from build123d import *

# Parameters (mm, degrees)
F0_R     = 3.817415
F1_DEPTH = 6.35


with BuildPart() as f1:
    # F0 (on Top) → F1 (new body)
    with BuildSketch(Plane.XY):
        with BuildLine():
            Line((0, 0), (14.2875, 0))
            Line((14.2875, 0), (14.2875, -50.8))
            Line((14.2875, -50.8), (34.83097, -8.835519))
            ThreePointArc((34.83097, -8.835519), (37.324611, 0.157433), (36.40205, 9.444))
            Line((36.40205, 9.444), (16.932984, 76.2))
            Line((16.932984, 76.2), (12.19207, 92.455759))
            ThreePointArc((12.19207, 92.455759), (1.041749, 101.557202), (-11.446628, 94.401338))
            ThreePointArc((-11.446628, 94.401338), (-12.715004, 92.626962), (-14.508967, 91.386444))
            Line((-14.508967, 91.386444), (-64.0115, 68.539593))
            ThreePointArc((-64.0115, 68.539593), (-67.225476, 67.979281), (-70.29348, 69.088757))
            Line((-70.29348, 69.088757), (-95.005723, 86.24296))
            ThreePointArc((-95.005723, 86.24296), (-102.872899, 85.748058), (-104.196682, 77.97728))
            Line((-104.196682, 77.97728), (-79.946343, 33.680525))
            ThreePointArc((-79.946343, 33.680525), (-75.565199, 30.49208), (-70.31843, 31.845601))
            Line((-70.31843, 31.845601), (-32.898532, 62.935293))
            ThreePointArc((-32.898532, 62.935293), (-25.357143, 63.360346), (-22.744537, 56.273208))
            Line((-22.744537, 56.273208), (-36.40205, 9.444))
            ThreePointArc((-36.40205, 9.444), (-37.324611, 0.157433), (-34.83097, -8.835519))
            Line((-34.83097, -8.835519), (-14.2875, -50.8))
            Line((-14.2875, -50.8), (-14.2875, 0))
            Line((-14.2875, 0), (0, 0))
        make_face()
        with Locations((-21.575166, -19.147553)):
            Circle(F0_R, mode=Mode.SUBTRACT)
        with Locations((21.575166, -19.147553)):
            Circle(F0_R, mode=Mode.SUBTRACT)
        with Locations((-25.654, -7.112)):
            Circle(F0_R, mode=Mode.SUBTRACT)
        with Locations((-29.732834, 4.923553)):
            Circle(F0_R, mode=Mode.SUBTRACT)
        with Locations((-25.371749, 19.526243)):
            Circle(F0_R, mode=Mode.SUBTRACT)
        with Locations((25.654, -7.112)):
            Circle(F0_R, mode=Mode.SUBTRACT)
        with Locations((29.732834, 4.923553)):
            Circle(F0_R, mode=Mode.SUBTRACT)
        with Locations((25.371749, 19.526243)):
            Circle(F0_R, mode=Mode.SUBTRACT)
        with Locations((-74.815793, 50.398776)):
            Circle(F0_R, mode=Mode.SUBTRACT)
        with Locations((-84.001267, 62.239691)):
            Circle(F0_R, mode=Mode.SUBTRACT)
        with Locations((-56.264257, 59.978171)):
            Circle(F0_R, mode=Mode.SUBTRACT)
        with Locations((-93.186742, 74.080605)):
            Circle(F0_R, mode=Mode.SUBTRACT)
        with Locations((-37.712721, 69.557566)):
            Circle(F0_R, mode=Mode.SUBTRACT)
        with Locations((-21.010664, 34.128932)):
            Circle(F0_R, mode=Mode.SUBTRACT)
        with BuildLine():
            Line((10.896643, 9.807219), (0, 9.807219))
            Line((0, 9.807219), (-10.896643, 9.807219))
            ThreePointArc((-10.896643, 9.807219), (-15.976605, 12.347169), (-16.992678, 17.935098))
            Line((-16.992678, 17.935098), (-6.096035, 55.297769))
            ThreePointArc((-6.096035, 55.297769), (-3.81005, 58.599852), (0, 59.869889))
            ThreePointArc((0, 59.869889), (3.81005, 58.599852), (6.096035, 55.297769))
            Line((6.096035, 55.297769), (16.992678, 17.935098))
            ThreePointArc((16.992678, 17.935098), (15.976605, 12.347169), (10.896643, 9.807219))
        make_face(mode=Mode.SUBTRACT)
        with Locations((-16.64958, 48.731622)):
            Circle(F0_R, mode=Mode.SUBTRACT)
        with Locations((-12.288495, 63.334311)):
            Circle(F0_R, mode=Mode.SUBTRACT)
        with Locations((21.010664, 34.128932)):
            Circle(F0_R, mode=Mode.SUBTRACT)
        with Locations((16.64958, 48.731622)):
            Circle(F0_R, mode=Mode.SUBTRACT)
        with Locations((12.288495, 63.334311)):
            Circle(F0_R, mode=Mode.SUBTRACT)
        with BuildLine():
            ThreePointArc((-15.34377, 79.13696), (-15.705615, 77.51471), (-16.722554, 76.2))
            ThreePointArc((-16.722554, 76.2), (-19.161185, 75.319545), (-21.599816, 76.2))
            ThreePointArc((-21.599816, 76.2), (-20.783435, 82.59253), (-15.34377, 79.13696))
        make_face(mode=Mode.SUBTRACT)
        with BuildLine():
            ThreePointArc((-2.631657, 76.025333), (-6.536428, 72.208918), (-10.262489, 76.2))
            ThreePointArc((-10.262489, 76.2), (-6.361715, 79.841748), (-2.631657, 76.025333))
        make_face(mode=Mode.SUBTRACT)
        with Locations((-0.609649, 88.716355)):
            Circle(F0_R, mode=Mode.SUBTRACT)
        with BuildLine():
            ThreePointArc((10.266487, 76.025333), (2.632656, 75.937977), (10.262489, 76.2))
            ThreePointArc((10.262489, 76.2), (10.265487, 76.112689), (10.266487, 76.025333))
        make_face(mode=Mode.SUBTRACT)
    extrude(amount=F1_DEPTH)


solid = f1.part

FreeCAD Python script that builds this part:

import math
import FreeCAD as App
import Part
import Sketcher
from FreeCAD import Vector
Q = App.Units.Quantity

doc = App.newDocument("Part")
body = doc.addObject("PartDesign::Body", "Body")

sketch1 = body.newObject("Sketcher::SketchObject", "Sketch")
sketch1.AttachmentSupport = (doc.getObject("XY_Plane"), [""])
sketch1.MapMode = "FlatFace"
sketch1.addGeometry([
    Part.LineSegment(Vector(14.2875, 0, 0), Vector(14.2875, -50.8, 0)),
    Part.LineSegment(Vector(14.2875, -50.8, 0), Vector(34.83097, -8.835519, 0)),
    Part.ArcOfCircle(Part.Circle(Vector(12.017908, 2.332483, 0), Vector(0, 0, 1), 25.400002), math.radians(-26.08379), math.radians(16.259069)),
    Part.LineSegment(Vector(36.40205, 9.444, 0), Vector(16.932984, 76.2, 0)),
    Part.LineSegment(Vector(16.932984, 76.2, 0), Vector(12.19207, 92.455759, 0)),
    Part.ArcOfCircle(Part.Circle(Vector(0, 88.9, 0), Vector(0, 0, 1), 12.7), math.radians(16.259072), math.radians(154.3307)),
    Part.ArcOfCircle(Part.Circle(Vector(-17.169941, 97.152006, 0), Vector(0, 0, 1), 6.349999), math.radians(-65.225305), math.radians(-25.669294)),
    Part.LineSegment(Vector(-14.508967, 91.386444, 0), Vector(-64.0115, 68.539593, 0)),
    Part.ArcOfCircle(Part.Circle(Vector(-66.672475, 74.305153, 0), Vector(0, 0, 1), 6.349998), math.radians(-124.766774), math.radians(-65.225296)),
    Part.LineSegment(Vector(-70.29348, 69.088757, 0), Vector(-95.005723, 86.24296, 0)),
    Part.ArcOfCircle(Part.Circle(Vector(-98.626728, 81.026561, 0), Vector(0, 0, 1), 6.35), math.radians(55.23324), math.radians(208.69858)),
    Part.LineSegment(Vector(-104.196682, 77.97728, 0), Vector(-79.946343, 33.680525, 0)),
    Part.ArcOfCircle(Part.Circle(Vector(-74.37639, 36.729806, 0), Vector(0, 0, 1), 6.35), math.radians(-151.301417), math.radians(-50.279075)),
    Part.LineSegment(Vector(-70.31843, 31.845601, 0), Vector(-32.898532, 62.935293, 0)),
    Part.ArcOfCircle(Part.Circle(Vector(-28.840572, 58.051088, 0), Vector(0, 0, 1), 6.35), math.radians(-16.259076), math.radians(129.72093)),
    Part.LineSegment(Vector(-22.744537, 56.273208, 0), Vector(-36.40205, 9.444, 0)),
    Part.ArcOfCircle(Part.Circle(Vector(-12.017908, 2.332483, 0), Vector(0, 0, 1), 25.400002), math.radians(163.740931), math.radians(206.08379)),
    Part.LineSegment(Vector(-34.83097, -8.835519, 0), Vector(-14.2875, -50.8, 0)),
    Part.LineSegment(Vector(-14.2875, -50.8, 0), Vector(-14.2875, 0, 0)),
    Part.LineSegment(Vector(-14.2875, 0, 0), Vector(14.2875, 0, 0)),
    Part.Circle(Vector(-21.575166, -19.147553, 0), Vector(0, 0, 1), 3.817415),
    Part.Circle(Vector(-25.654, -7.112, 0), Vector(0, 0, 1), 3.817415),
    Part.Circle(Vector(-29.732834, 4.923553, 0), Vector(0, 0, 1), 3.817415),
    Part.Circle(Vector(21.575166, -19.147553, 0), Vector(0, 0, 1), 3.817415),
    Part.Circle(Vector(25.654, -7.112, 0), Vector(0, 0, 1), 3.817415),
    Part.Circle(Vector(29.732834, 4.923553, 0), Vector(0, 0, 1), 3.817415),
    Part.Circle(Vector(-25.371749, 19.526243, 0), Vector(0, 0, 1), 3.817415),
    Part.Circle(Vector(-21.010664, 34.128932, 0), Vector(0, 0, 1), 3.817415),
    Part.Circle(Vector(25.371749, 19.526243, 0), Vector(0, 0, 1), 3.817415),
    Part.Circle(Vector(21.010664, 34.128932, 0), Vector(0, 0, 1), 3.817415),
    Part.Circle(Vector(-84.001267, 62.239691, 0), Vector(0, 0, 1), 3.817415),
    Part.Circle(Vector(-74.815793, 50.398776, 0), Vector(0, 0, 1), 3.817415),
    Part.Circle(Vector(-56.264257, 59.978171, 0), Vector(0, 0, 1), 3.817415),
    Part.Circle(Vector(-93.186742, 74.080605, 0), Vector(0, 0, 1), 3.817415),
    Part.Circle(Vector(-37.712721, 69.557566, 0), Vector(0, 0, 1), 3.817415),
    Part.Circle(Vector(-16.64958, 48.731622, 0), Vector(0, 0, 1), 3.817415),
    Part.ArcOfCircle(Part.Circle(Vector(10.896642, 16.157219, 0), Vector(0, 0, 1), 6.35), math.radians(-89.999994), math.radians(16.259064)),
    Part.LineSegment(Vector(10.896643, 9.807219, 0), Vector(-10.896643, 9.807219, 0)),
    Part.ArcOfCircle(Part.Circle(Vector(-10.896642, 16.157219, 0), Vector(0, 0, 1), 6.35), math.radians(163.740936), math.radians(269.999994)),
    Part.LineSegment(Vector(-16.992678, 17.935098, 0), Vector(-6.096035, 55.297769, 0)),
    Part.ArcOfCircle(Part.Circle(Vector(-0.000001, 53.519891, 0), Vector(0, 0, 1), 6.349998), math.radians(89.999989), math.radians(163.740934)),
    Part.ArcOfCircle(Part.Circle(Vector(0.000001, 53.519891, 0), Vector(0, 0, 1), 6.349998), math.radians(16.259066), math.radians(90.000011)),
    Part.LineSegment(Vector(6.096035, 55.297769, 0), Vector(16.992678, 17.935098, 0)),
    Part.Circle(Vector(-12.288495, 63.334311, 0), Vector(0, 0, 1), 3.817415),
    Part.Circle(Vector(16.64958, 48.731622, 0), Vector(0, 0, 1), 3.817415),
    Part.Circle(Vector(12.288495, 63.334311, 0), Vector(0, 0, 1), 3.817415),
    Part.ArcOfCircle(Part.Circle(Vector(-6.449072, 76.025333, 0), Vector(0, 0, 1), 3.817415), math.radians(0.000006), math.radians(177.377493)),
    Part.ArcOfCircle(Part.Circle(Vector(-6.449072, 76.025333, 0), Vector(0, 0, 1), 3.817415), math.radians(177.377504), math.radians(359.999994)),
    Part.ArcOfCircle(Part.Circle(Vector(-19.161185, 79.13696, 0), Vector(0, 0, 1), 3.817415), math.radians(-0.000005), math.radians(230.296309)),
    Part.ArcOfCircle(Part.Circle(Vector(-19.161181, 79.136959, 0), Vector(0, 0, 1), 3.817411), math.radians(-50.296336), math.radians(0.000021)),
    Part.ArcOfCircle(Part.Circle(Vector(-19.161185, 79.136959, 0), Vector(0, 0, 1), 3.817414), math.radians(-129.703705), math.radians(-50.296295)),
    Part.Circle(Vector(-0.609649, 88.716355, 0), Vector(0, 0, 1), 3.817415),
    Part.ArcOfCircle(Part.Circle(Vector(6.447568, 76.0253, 0), Vector(0, 0, 1), 3.818919), math.radians(0.000495), math.radians(2.621964)),
    Part.ArcOfCircle(Part.Circle(Vector(6.449072, 76.025334, 0), Vector(0, 0, 1), 3.817415), math.radians(2.62248), math.radians(359.999979)),
], False)
sketch1.addConstraint([
    Sketcher.Constraint("Coincident", 0, 2, 1, 1),
    Sketcher.Constraint("Tangent", 1, 2, 2, 1),
    Sketcher.Constraint("Tangent", 2, 2, 3, 1),
    Sketcher.Constraint("Coincident", 3, 2, 4, 1),
    Sketcher.Constraint("Tangent", 4, 2, 5, 1),
    Sketcher.Constraint("Tangent", 5, 2, 6, 2),
    Sketcher.Constraint("Tangent", 6, 1, 7, 1),
    Sketcher.Constraint("Tangent", 7, 2, 8, 2),
    Sketcher.Constraint("Tangent", 8, 1, 9, 1),
    Sketcher.Constraint("Tangent", 9, 2, 10, 1),
    Sketcher.Constraint("Tangent", 10, 2, 11, 1),
    Sketcher.Constraint("Tangent", 11, 2, 12, 1),
    Sketcher.Constraint("Tangent", 12, 2, 13, 1),
    Sketcher.Constraint("Tangent", 13, 2, 14, 2),
    Sketcher.Constraint("Tangent", 14, 1, 15, 1),
    Sketcher.Constraint("Tangent", 15, 2, 16, 1),
    Sketcher.Constraint("Tangent", 16, 2, 17, 1),
    Sketcher.Constraint("Coincident", 17, 2, 18, 1),
    Sketcher.Constraint("Coincident", 18, 2, 19, 1),
    Sketcher.Constraint("Coincident", 19, 2, 0, 1),
    Sketcher.Constraint("Tangent", 36, 1, 37, 1),
    Sketcher.Constraint("Tangent", 37, 2, 38, 2),
    Sketcher.Constraint("Tangent", 38, 1, 39, 1),
    Sketcher.Constraint("Tangent", 39, 2, 40, 2),
    Sketcher.Constraint("Tangent", 40, 1, 41, 2),
    Sketcher.Constraint("Tangent", 41, 1, 42, 1),
    Sketcher.Constraint("Tangent", 42, 2, 36, 2),
    Sketcher.Constraint("Tangent", 46, 1, 47, 2),
    Sketcher.Constraint("Coincident", 47, 1, 46, 2),
    Sketcher.Constraint("Tangent", 48, 1, 49, 2),
    Sketcher.Constraint("Tangent", 49, 1, 50, 2),
    Sketcher.Constraint("Tangent", 50, 1, 48, 2),
    Sketcher.Constraint("Coincident", 52, 1, 53, 2),
    Sketcher.Constraint("Coincident", 53, 1, 52, 2),
    Sketcher.Constraint("Vertical", 0),
    Sketcher.Constraint("Vertical", 18),
    Sketcher.Constraint("Horizontal", 19),
    Sketcher.Constraint("Horizontal", 37),
    Sketcher.Constraint("Equal", 6, 8),
    Sketcher.Constraint("Equal", 6, 10),
    Sketcher.Constraint("Equal", 10, 12),
    Sketcher.Constraint("Equal", 12, 14),
    Sketcher.Constraint("Equal", 2, 16),
    Sketcher.Constraint("Equal", 20, 21),
    Sketcher.Constraint("Equal", 21, 22),
    Sketcher.Constraint("Equal", 22, 23),
    Sketcher.Constraint("Equal", 23, 24),
    Sketcher.Constraint("Equal", 24, 25),
    Sketcher.Constraint("Equal", 25, 26),
    Sketcher.Constraint("Equal", 26, 27),
    Sketcher.Constraint("Equal", 27, 28),
    Sketcher.Constraint("Equal", 28, 29),
    Sketcher.Constraint("Equal", 29, 30),
    Sketcher.Constraint("Equal", 30, 31),
    Sketcher.Constraint("Equal", 31, 32),
    Sketcher.Constraint("Equal", 32, 33),
    Sketcher.Constraint("Equal", 33, 34),
    Sketcher.Constraint("Equal", 34, 35),
    Sketcher.Constraint("Equal", 14, 36),
    Sketcher.Constraint("Equal", 36, 38),
    Sketcher.Constraint("Equal", 38, 40),
    Sketcher.Constraint("Equal", 40, 41),
    Sketcher.Constraint("Equal", 35, 43),
    Sketcher.Constraint("Equal", 43, 44),
    Sketcher.Constraint("Equal", 44, 45),
    Sketcher.Constraint("Equal", 45, 46),
    Sketcher.Constraint("Equal", 47, 48),
    Sketcher.Constraint("Equal", 50, 51),
    Sketcher.Constraint("Equal", 51, 53),
    Sketcher.Constraint("Symmetric", 18, 2, 19, 2, -1, 1),
    Sketcher.Constraint("Symmetric", 2, 3, 16, 3, -2),
    Sketcher.Constraint("Symmetric", 20, 3, 23, 3, -2),
    Sketcher.Constraint("Symmetric", 21, 3, 24, 3, -2),
    Sketcher.Constraint("Symmetric", 22, 3, 25, 3, -2),
    Sketcher.Constraint("Symmetric", 26, 3, 28, 3, -2),
    Sketcher.Constraint("Symmetric", 27, 3, 29, 3, -2),
    Sketcher.Constraint("Symmetric", 35, 3, 44, 3, -2),
    Sketcher.Constraint("Symmetric", 43, 3, 45, 3, -2),
    Sketcher.Constraint("Symmetric", 46, 3, 53, 3, -2),
    Sketcher.Constraint("Symmetric", 39, 2, 41, 1, -2),
    Sketcher.Constraint("PointOnObject", 5, 3, -2),
    Sketcher.Constraint("PointOnObject", 40, 1, -2),
    Sketcher.Constraint("Parallel", 3, 4),
    Sketcher.Constraint("Parallel", 15, 39),
    Sketcher.Constraint("Parallel", 4, 42),
    Sketcher.Constraint("Horizontal", 1, 2, 16, 2),
    Sketcher.Constraint("Horizontal", 53, 3, 46, 1),
    Sketcher.Constraint("Horizontal", 3, 2, 47, 1),
    Sketcher.Constraint("Horizontal", 50, 3, 48, 1),
    Sketcher.Constraint("Horizontal", 47, 1, 49, 1),
    Sketcher.Constraint("Horizontal", 49, 1, 50, 1),
    Sketcher.Constraint("Horizontal", 46, 1, 52, 1),
    Sketcher.Constraint("Horizontal", 50, 1, 53, 1),
    Sketcher.Constraint("Radius", 2, Q("1.0000001 in")),
    Sketcher.Constraint("Radius", 5, Q("0.5 in")),
    Sketcher.Constraint("DistanceY", 0, 2, 0, 1, Q("2 in")),
    Sketcher.Constraint("Radius", 6, Q("0.25 in")),
    Sketcher.Constraint("DistanceY", -1, 1, 3, 2, Q("3 in")),
    Sketcher.Constraint("DistanceY", -1, 1, 5, 3, Q("3.5 in")),
    Sketcher.Constraint("DistanceX", 19, 1, 19, 2, Q("1.125 in")),
    Sketcher.Constraint("DistanceX", 21, 3, -1, 1, Q("1.01 in")),
    Sketcher.Constraint("DistanceY", 21, 3, -1, 1, Q("0.28 in")),
    Sketcher.Constraint("Diameter", 20, Q("7.63483 mm")),
    Sketcher.Constraint("Radius", 52, Q("3.818919 mm")),
    Sketcher.Constraint("Distance", 3, Q("69.537098 mm")),
    Sketcher.Constraint("DistanceY", -1, 1, 52, 3, Q("76.0253 mm")),
    Sketcher.Constraint("DistanceY", -1, 1, 2, 2, Q("9.444 mm")),
    Sketcher.Constraint("DistanceX", 7, 2, -1, 1, Q("64.0115 mm")),
    Sketcher.Constraint("DistanceY", -1, 1, 12, 2, Q("31.845601 mm")),
    Sketcher.Constraint("DistanceY", -1, 1, 38, 1, Q("17.935098 mm")),
    Sketcher.Constraint("Distance", 7, Q("54.520449 mm")),
    Sketcher.Constraint("Distance", 9, Q("30.08258 mm")),
    Sketcher.Constraint("Distance", 11, Q("50.500311 mm")),
    Sketcher.Constraint("Distance", 13, Q("48.649951 mm")),
    Sketcher.Constraint("DistanceX", 37, 2, 37, 1, Q("21.793286 mm")),
    Sketcher.Constraint("DistanceX", 6, 3, -1, 1, Q("17.169941 mm")),
    Sketcher.Constraint("DistanceX", 10, 3, -1, 1, Q("98.626728 mm")),
    Sketcher.Constraint("DistanceX", 26, 3, -1, 1, Q("25.371749 mm")),
    Sketcher.Constraint("DistanceY", -1, 1, 30, 3, Q("62.239691 mm")),
    Sketcher.Constraint("DistanceY", -1, 1, 32, 3, Q("59.978171 mm")),
    Sketcher.Constraint("DistanceX", 33, 3, -1, 1, Q("93.186742 mm")),
    Sketcher.Constraint("DistanceX", 34, 3, -1, 1, Q("37.712721 mm")),
    Sketcher.Constraint("DistanceX", 35, 3, -1, 1, Q("16.64958 mm")),
    Sketcher.Constraint("DistanceY", -1, 1, 43, 3, Q("63.334311 mm")),
    Sketcher.Constraint("DistanceY", -1, 1, 48, 3, Q("79.13696 mm")),
    Sketcher.Constraint("DistanceX", 49, 3, -1, 1, Q("19.161181 mm")),
    Sketcher.Constraint("DistanceX", 51, 3, -1, 1, Q("0.609649 mm")),
    Sketcher.Constraint("DistanceX", -1, 1, 53, 3, Q("6.449072 mm")),
    Sketcher.Constraint("DistanceX", 20, 3, -1, 1, Q("21.575166 mm")),
    Sketcher.Constraint("DistanceY", 20, 3, -1, 1, Q("19.147553 mm")),
    Sketcher.Constraint("DistanceX", 22, 3, -1, 1, Q("29.732834 mm")),
    Sketcher.Constraint("DistanceY", -1, 1, 22, 3, Q("4.923553 mm")),
    Sketcher.Constraint("DistanceY", -1, 1, 26, 3, Q("19.526243 mm")),
    Sketcher.Constraint("DistanceX", 27, 3, -1, 1, Q("21.010664 mm")),
    Sketcher.Constraint("DistanceY", -1, 1, 27, 3, Q("34.128932 mm")),
    Sketcher.Constraint("DistanceX", 30, 3, -1, 1, Q("84.001267 mm")),
    Sketcher.Constraint("DistanceX", 31, 3, -1, 1, Q("74.815793 mm")),
    Sketcher.Constraint("DistanceY", -1, 1, 31, 3, Q("50.398776 mm")),
    Sketcher.Constraint("DistanceX", 32, 3, -1, 1, Q("56.264257 mm")),
    Sketcher.Constraint("DistanceY", -1, 1, 33, 3, Q("74.080605 mm")),
    Sketcher.Constraint("DistanceY", -1, 1, 34, 3, Q("69.557566 mm")),
    Sketcher.Constraint("DistanceY", -1, 1, 35, 3, Q("48.731622 mm")),
    Sketcher.Constraint("DistanceX", 43, 3, -1, 1, Q("12.288495 mm")),
    Sketcher.Constraint("DistanceY", -1, 1, 51, 3, Q("88.716355 mm")),
])
pad1 = body.newObject("PartDesign::Pad", "Pad")
pad1.Profile = sketch1
pad1.Length = Q("0.25 in")

doc.recompute()
